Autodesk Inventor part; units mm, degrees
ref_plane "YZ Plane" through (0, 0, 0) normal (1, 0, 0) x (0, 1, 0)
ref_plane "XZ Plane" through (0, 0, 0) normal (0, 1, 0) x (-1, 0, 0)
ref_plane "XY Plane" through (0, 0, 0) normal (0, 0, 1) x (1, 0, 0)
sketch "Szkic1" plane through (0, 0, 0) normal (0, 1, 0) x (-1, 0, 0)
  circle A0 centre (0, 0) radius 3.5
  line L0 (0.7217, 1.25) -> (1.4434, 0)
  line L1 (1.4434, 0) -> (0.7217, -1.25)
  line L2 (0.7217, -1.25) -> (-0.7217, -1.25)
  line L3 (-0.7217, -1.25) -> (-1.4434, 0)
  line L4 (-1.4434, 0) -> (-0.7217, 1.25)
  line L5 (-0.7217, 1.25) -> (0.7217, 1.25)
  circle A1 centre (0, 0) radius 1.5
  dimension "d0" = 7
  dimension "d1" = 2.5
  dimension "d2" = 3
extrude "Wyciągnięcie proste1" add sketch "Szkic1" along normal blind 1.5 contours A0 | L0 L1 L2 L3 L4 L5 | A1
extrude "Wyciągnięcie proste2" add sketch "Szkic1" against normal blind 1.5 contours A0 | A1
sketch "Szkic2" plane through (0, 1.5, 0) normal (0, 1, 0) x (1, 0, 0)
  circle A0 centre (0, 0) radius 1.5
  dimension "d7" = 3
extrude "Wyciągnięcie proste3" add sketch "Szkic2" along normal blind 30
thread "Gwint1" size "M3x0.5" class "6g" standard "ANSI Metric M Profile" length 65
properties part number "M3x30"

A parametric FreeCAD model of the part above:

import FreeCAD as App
import Part
import Sketcher

V = App.Vector
Q = App.Units.Quantity

doc = App.newDocument("Part")
body = doc.addObject("PartDesign::Body", "Body")

# Sketch on XZ plane
sketch1 = body.newObject("Sketcher::SketchObject", "Sketch")
sketch1.AttachmentSupport = (doc.getObject("XZ_Plane"), [""])
sketch1.MapMode = "FlatFace"
sketch1.addGeometry(Part.Circle(V(0, 0, 0), V(0, 0, 1), 3.5), False)
sketch1.addConstraint([
    Sketcher.Constraint("Coincident", 0, 3, -1, 1),
    Sketcher.Constraint("Diameter", 0, 7.0),
])
pad1 = body.newObject("PartDesign::Pad", "Pad")
pad1.Profile = sketch1
pad1.Length = 1.5
pad1.Reversed = True

# Sketch on XZ plane
sketch2 = body.newObject("Sketcher::SketchObject", "Sketch001")
sketch2.AttachmentSupport = (doc.getObject("XZ_Plane"), [""])
sketch2.MapMode = "FlatFace"
sketch2.addGeometry([
    Part.Circle(V(0, 0, 0), V(0, 0, 1), 3.5),  # 0
    Part.LineSegment(V(-0.7217, 1.25, 0), V(-1.4434, 0, 0)),  # 1
    Part.LineSegment(V(-1.4434, 0, 0), V(-0.7217, -1.25, 0)),  # 2
    Part.LineSegment(V(-0.7217, -1.25, 0), V(0.7217, -1.25, 0)),  # 3
    Part.LineSegment(V(0.7217, -1.25, 0), V(1.4434, 0, 0)),  # 4
    Part.LineSegment(V(1.4434, 0, 0), V(0.7217, 1.25, 0)),  # 5
    Part.LineSegment(V(0.7217, 1.25, 0), V(-0.7217, 1.25, 0)),  # 6
], False)
sketch2.addConstraint([
    Sketcher.Constraint("Coincident", 1, 2, 2, 1),
    Sketcher.Constraint("Coincident", 2, 2, 3, 1),
    Sketcher.Constraint("Coincident", 3, 2, 4, 1),
    Sketcher.Constraint("Coincident", 4, 2, 5, 1),
    Sketcher.Constraint("Coincident", 5, 2, 6, 1),
    Sketcher.Constraint("Coincident", 6, 2, 1, 1),
    Sketcher.Constraint("Horizontal", 3),
    Sketcher.Constraint("Horizontal", 6),
    Sketcher.Constraint("Coincident", 0, 3, -1, 1),
    Sketcher.Constraint("Symmetric", 1, 2, 4, 2, -1, 1),
    Sketcher.Constraint("Symmetric", 2, 2, 5, 2, -1, 1),
    Sketcher.Constraint("PointOnObject", 1, 2, -1),
    Sketcher.Constraint("Parallel", 1, 4),
    Sketcher.Constraint("Vertical", 3, 2, 5, 2),
    Sketcher.Constraint("Diameter", 0, 7.0),
    Sketcher.Constraint("DistanceY", 3, 2, 5, 2, 2.5),
    Sketcher.Constraint("Angle", 1, Q("-120.0004 deg")),
    Sketcher.Constraint("DistanceX", 3, 1, 3, 2, 1.4434),
])
pad2 = body.newObject("PartDesign::Pad", "Pad001")
pad2.Profile = sketch2
pad2.Length = 1.5

# Sketch on XZ plane
sketch3 = body.newObject("Sketcher::SketchObject", "Sketch002")
sketch3.AttachmentSupport = (doc.getObject("XZ_Plane"), [""])
sketch3.MapMode = "FlatFace"
sketch3.AttachmentOffset = App.Placement(V(0, 0, -1.5), App.Rotation())
sketch3.addGeometry(Part.Circle(V(0, 0, 0), V(0, 0, 1), 1.5), False)
sketch3.addConstraint([
    Sketcher.Constraint("Coincident", 0, 3, -1, 1),
    Sketcher.Constraint("Diameter", 0, 3.0),
])
pad3 = body.newObject("PartDesign::Pad", "Pad002")
pad3.Profile = sketch3
pad3.Length = 30
pad3.Reversed = True

doc.recompute()
